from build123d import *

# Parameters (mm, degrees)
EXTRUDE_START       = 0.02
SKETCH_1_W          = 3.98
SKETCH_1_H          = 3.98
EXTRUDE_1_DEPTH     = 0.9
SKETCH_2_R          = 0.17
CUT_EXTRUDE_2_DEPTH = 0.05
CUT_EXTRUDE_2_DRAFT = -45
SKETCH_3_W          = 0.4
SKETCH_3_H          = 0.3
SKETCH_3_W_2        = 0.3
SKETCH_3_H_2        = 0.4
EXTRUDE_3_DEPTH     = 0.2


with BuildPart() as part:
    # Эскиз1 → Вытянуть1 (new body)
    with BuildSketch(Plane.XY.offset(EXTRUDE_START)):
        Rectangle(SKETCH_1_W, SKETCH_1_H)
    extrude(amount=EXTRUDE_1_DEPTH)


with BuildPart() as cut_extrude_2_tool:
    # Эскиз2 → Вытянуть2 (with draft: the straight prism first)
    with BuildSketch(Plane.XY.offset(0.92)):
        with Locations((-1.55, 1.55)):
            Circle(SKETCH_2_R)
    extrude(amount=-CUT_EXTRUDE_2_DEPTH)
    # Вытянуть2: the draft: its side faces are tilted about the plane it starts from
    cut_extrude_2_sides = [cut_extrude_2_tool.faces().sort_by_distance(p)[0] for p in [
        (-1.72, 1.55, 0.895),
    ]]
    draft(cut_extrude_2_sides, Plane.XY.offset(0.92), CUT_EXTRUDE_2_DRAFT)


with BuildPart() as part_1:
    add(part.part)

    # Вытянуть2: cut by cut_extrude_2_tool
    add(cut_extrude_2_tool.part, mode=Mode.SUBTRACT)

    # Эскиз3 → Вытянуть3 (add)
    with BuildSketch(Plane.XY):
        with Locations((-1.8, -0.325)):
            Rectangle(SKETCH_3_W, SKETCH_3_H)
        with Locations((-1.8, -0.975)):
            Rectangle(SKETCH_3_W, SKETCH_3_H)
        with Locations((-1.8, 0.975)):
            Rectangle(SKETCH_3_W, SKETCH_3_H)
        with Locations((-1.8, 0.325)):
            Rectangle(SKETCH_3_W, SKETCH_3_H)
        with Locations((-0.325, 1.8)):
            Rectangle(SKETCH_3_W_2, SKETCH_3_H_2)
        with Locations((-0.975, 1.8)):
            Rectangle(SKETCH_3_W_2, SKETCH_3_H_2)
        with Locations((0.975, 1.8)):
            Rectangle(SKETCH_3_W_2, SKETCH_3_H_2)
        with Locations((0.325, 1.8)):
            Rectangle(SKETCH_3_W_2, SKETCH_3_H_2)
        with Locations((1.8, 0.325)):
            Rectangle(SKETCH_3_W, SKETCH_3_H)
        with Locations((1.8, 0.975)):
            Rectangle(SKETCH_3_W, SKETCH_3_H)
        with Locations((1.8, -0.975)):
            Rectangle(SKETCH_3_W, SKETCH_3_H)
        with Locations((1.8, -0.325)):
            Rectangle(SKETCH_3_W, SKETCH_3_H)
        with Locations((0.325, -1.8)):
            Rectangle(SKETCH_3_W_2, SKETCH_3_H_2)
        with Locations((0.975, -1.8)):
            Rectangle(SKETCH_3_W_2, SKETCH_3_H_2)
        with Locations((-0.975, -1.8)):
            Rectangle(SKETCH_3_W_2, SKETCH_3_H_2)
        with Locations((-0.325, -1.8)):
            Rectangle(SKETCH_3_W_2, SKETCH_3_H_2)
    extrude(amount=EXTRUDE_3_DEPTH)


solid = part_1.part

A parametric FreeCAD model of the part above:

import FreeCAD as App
import Part
import Sketcher
from FreeCAD import Vector


def faces_at(feature, points):
    """Names of the faces that lie closest to the given points."""
    faces = feature.Shape.Faces
    near = lambda p: min(range(len(faces)), key=lambda i: faces[i].distToShape(Part.Vertex(*p))[0])
    return sorted({f"Face{near(p) + 1}" for p in points})

doc = App.newDocument("Part")
body = doc.addObject("PartDesign::Body", "Body")

# Sketch on XY plane
sketch1 = body.newObject("Sketcher::SketchObject", "Sketch")
sketch1.AttachmentSupport = (doc.getObject("XY_Plane"), [""])
sketch1.MapMode = "FlatFace"
sketch1.AttachmentOffset = App.Placement(Vector(0, 0, 0.02), App.Rotation())
sketch1.addGeometry(Part.LineSegment(Vector(-2, 2, 0), Vector(-2, -2, 0)), False)
sketch1.addGeometry(Part.LineSegment(Vector(-2, -2, 0), Vector(2, -2, 0)), False)
sketch1.addGeometry(Part.LineSegment(Vector(2, -2, 0), Vector(2, 2, 0)), False)
sketch1.addGeometry(Part.LineSegment(Vector(2, 2, 0), Vector(-2, 2, 0)), False)
sketch1.addConstraint(Sketcher.Constraint("Coincident", 0, 2, 1, 1))
sketch1.addConstraint(Sketcher.Constraint("Coincident", 1, 2, 2, 1))
sketch1.addConstraint(Sketcher.Constraint("Coincident", 2, 2, 3, 1))
sketch1.addConstraint(Sketcher.Constraint("Coincident", 3, 2, 0, 1))
sketch1.addConstraint(Sketcher.Constraint("Vertical", 0))
sketch1.addConstraint(Sketcher.Constraint("Horizontal", 1))
sketch1.addConstraint(Sketcher.Constraint("Vertical", 2))
sketch1.addConstraint(Sketcher.Constraint("Horizontal", 3))
sketch1.addConstraint(Sketcher.Constraint("Symmetric", 0, 2, 2, 2, -1, 1))
sketch1.addConstraint(Sketcher.Constraint("Equal", 3, 0))
sketch1.addConstraint(Sketcher.Constraint("DistanceX", 1, 1, 1, 2, 3.98))
pad1 = body.newObject("PartDesign::Pad", "Pad")
pad1.Profile = sketch1
pad1.Length = 0.9
body2 = doc.addObject("PartDesign::Body", "Body001")

# Sketch on XY plane
sketch2 = body2.newObject("Sketcher::SketchObject", "Sketch001")
sketch2.AttachmentSupport = (doc.getObject("XY_Plane001"), [""])
sketch2.MapMode = "FlatFace"
sketch2.AttachmentOffset = App.Placement(Vector(0, 0, 0.92), App.Rotation())
sketch2.addGeometry(Part.Circle(Vector(-1.55, 1.55, 0), Vector(0, 0, 1), 0.17), False)
sketch2.addConstraint(Sketcher.Constraint("Diameter", 0, 0.34))
sketch2.addConstraint(Sketcher.Constraint("DistanceX", 0, 3, -1, 1, 1.55))
sketch2.addConstraint(Sketcher.Constraint("DistanceY", -1, 1, 0, 3, 1.55))
pad2 = body2.newObject("PartDesign::Pad", "Pad001")
pad2.Profile = sketch2
pad2.Length = 0.05
pad2.Reversed = True
doc.recompute()

datumplane = body2.newObject("PartDesign::Plane", "DatumPlane")
datumplane.AttachmentSupport = (doc.getObject("XY_Plane001"), [""])
datumplane.MapMode = "FlatFace"
datumplane.AttachmentOffset = App.Placement(Vector(0, 0, 0.92), App.Rotation())
draft = body2.newObject("PartDesign::Draft", "Draft")
draft.Base = (pad2, faces_at(pad2, [(-1.72, 1.55, 0.895)]))
draft.NeutralPlane = (datumplane, [""])
draft.Angle = 45
draft.Reversed = True
doc.recompute()

boolean = body.newObject("PartDesign::Boolean", "Boolean")
boolean.Type = "Cut"
boolean.addObjects([body2])

# Sketch on XY plane
sketch3 = body.newObject("Sketcher::SketchObject", "Sketch002")
sketch3.AttachmentSupport = (doc.getObject("XY_Plane"), [""])
sketch3.MapMode = "FlatFace"
sketch3.addGeometry(Part.LineSegment(Vector(-2, -0.17, 0), Vector(-2, -0.47, 0)), False)
sketch3.addGeometry(Part.LineSegment(Vector(-2, -0.47, 0), Vector(-1.6, -0.47, 0)), False)
sketch3.addGeometry(Part.LineSegment(Vector(-1.6, -0.47, 0), Vector(-1.6, -0.17, 0)), False)
sketch3.addGeometry(Part.LineSegment(Vector(-1.6, -0.17, 0), Vector(-2, -0.17, 0)), False)
sketch3.addGeometry(Part.LineSegment(Vector(-2, -0.82, 0), Vector(-2, -1.12, 0)), False)
sketch3.addGeometry(Part.LineSegment(Vector(-2, -1.12, 0), Vector(-1.6, -1.12, 0)), False)
sketch3.addGeometry(Part.LineSegment(Vector(-1.6, -1.12, 0), Vector(-1.6, -0.82, 0)), False)
sketch3.addGeometry(Part.LineSegment(Vector(-1.6, -0.82, 0), Vector(-2, -0.82, 0)), False)
sketch3.addGeometry(Part.LineSegment(Vector(-2, 1.12, 0), Vector(-2, 0.82, 0)), False)
sketch3.addGeometry(Part.LineSegment(Vector(-2, 0.82, 0), Vector(-1.6, 0.82, 0)), False)
sketch3.addGeometry(Part.LineSegment(Vector(-1.6, 0.82, 0), Vector(-1.6, 1.12, 0)), False)
sketch3.addGeometry(Part.LineSegment(Vector(-1.6, 1.12, 0), Vector(-2, 1.12, 0)), False)
sketch3.addGeometry(Part.LineSegment(Vector(-2, 0.47, 0), Vector(-2, 0.17, 0)), False)
sketch3.addGeometry(Part.LineSegment(Vector(-2, 0.17, 0), Vector(-1.6, 0.17, 0)), False)
sketch3.addGeometry(Part.LineSegment(Vector(-1.6, 0.17, 0), Vector(-1.6, 0.47, 0)), False)
sketch3.addGeometry(Part.LineSegment(Vector(-1.6, 0.47, 0), Vector(-2, 0.47, 0)), False)
sketch3.addGeometry(Part.LineSegment(Vector(-0.47, 2, 0), Vector(-0.47, 1.6, 0)), False)
sketch3.addGeometry(Part.LineSegment(Vector(-0.47, 1.6, 0), Vector(-0.17, 1.6, 0)), False)
sketch3.addGeometry(Part.LineSegment(Vector(-0.17, 1.6, 0), Vector(-0.17, 2, 0)), False)
sketch3.addGeometry(Part.LineSegment(Vector(-0.17, 2, 0), Vector(-0.47, 2, 0)), False)
sketch3.addGeometry(Part.LineSegment(Vector(-1.12, 2, 0), Vector(-1.12, 1.6, 0)), False)
sketch3.addGeometry(Part.LineSegment(Vector(-1.12, 1.6, 0), Vector(-0.82, 1.6, 0)), False)
sketch3.addGeometry(Part.LineSegment(Vector(-0.82, 1.6, 0), Vector(-0.82, 2, 0)), False)
sketch3.addGeometry(Part.LineSegment(Vector(-0.82, 2, 0), Vector(-1.12, 2, 0)), False)
sketch3.addGeometry(Part.LineSegment(Vector(0.82, 2, 0), Vector(0.82, 1.6, 0)), False)
sketch3.addGeometry(Part.LineSegment(Vector(0.82, 1.6, 0), Vector(1.12, 1.6, 0)), False)
sketch3.addGeometry(Part.LineSegment(Vector(1.12, 1.6, 0), Vector(1.12, 2, 0)), False)
sketch3.addGeometry(Part.LineSegment(Vector(1.12, 2, 0), Vector(0.82, 2, 0)), False)
sketch3.addGeometry(Part.LineSegment(Vector(0.17, 2, 0), Vector(0.17, 1.6, 0)), False)
sketch3.addGeometry(Part.LineSegment(Vector(0.17, 1.6, 0), Vector(0.47, 1.6, 0)), False)
sketch3.addGeometry(Part.LineSegment(Vector(0.47, 1.6, 0), Vector(0.47, 2, 0)), False)
sketch3.addGeometry(Part.LineSegment(Vector(0.47, 2, 0), Vector(0.17, 2, 0)), False)
sketch3.addGeometry(Part.LineSegment(Vector(1.6, 0.47, 0), Vector(1.6, 0.17, 0)), False)
sketch3.addGeometry(Part.LineSegment(Vector(1.6, 0.17, 0), Vector(2, 0.17, 0)), False)
sketch3.addGeometry(Part.LineSegment(Vector(2, 0.17, 0), Vector(2, 0.47, 0)), False)
sketch3.addGeometry(Part.LineSegment(Vector(2, 0.47, 0), Vector(1.6, 0.47, 0)), False)
sketch3.addGeometry(Part.LineSegment(Vector(1.6, 1.12, 0), Vector(1.6, 0.82, 0)), False)
sketch3.addGeometry(Part.LineSegment(Vector(1.6, 0.82, 0), Vector(2, 0.82, 0)), False)
sketch3.addGeometry(Part.LineSegment(Vector(2, 0.82, 0), Vector(2, 1.12, 0)), False)
sketch3.addGeometry(Part.LineSegment(Vector(2, 1.12, 0), Vector(1.6, 1.12, 0)), False)
sketch3.addGeometry(Part.LineSegment(Vector(1.6, -0.82, 0), Vector(1.6, -1.12, 0)), False)
sketch3.addGeometry(Part.LineSegment(Vector(1.6, -1.12, 0), Vector(2, -1.12, 0)), False)
sketch3.addGeometry(Part.LineSegment(Vector(2, -1.12, 0), Vector(2, -0.82, 0)), False)
sketch3.addGeometry(Part.LineSegment(Vector(2, -0.82, 0), Vector(1.6, -0.82, 0)), False)
sketch3.addGeometry(Part.LineSegment(Vector(1.6, -0.17, 0), Vector(1.6, -0.47, 0)), False)
sketch3.addGeometry(Part.LineSegment(Vector(1.6, -0.47, 0), Vector(2, -0.47, 0)), False)
sketch3.addGeometry(Part.LineSegment(Vector(2, -0.47, 0), Vector(2, -0.17, 0)), False)
sketch3.addGeometry(Part.LineSegment(Vector(2, -0.17, 0), Vector(1.6, -0.17, 0)), False)
sketch3.addGeometry(Part.LineSegment(Vector(0.17, -1.6, 0), Vector(0.17, -2, 0)), False)
sketch3.addGeometry(Part.LineSegment(Vector(0.17, -2, 0), Vector(0.47, -2, 0)), False)
sketch3.addGeometry(Part.LineSegment(Vector(0.47, -2, 0), Vector(0.47, -1.6, 0)), False)
sketch3.addGeometry(Part.LineSegment(Vector(0.47, -1.6, 0), Vector(0.17, -1.6, 0)), False)
sketch3.addGeometry(Part.LineSegment(Vector(0.82, -1.6, 0), Vector(0.82, -2, 0)), False)
sketch3.addGeometry(Part.LineSegment(Vector(0.82, -2, 0), Vector(1.12, -2, 0)), False)
sketch3.addGeometry(Part.LineSegment(Vector(1.12, -2, 0), Vector(1.12, -1.6, 0)), False)
sketch3.addGeometry(Part.LineSegment(Vector(1.12, -1.6, 0), Vector(0.82, -1.6, 0)), False)
sketch3.addGeometry(Part.LineSegment(Vector(-1.12, -1.6, 0), Vector(-1.12, -2, 0)), False)
sketch3.addGeometry(Part.LineSegment(Vector(-1.12, -2, 0), Vector(-0.82, -2, 0)), False)
sketch3.addGeometry(Part.LineSegment(Vector(-0.82, -2, 0), Vector(-0.82, -1.6, 0)), False)
sketch3.addGeometry(Part.LineSegment(Vector(-0.82, -1.6, 0), Vector(-1.12, -1.6, 0)), False)
sketch3.addGeometry(Part.LineSegment(Vector(-0.47, -1.6, 0), Vector(-0.47, -2, 0)), False)
sketch3.addGeometry(Part.LineSegment(Vector(-0.47, -2, 0), Vector(-0.17, -2, 0)), False)
sketch3.addGeometry(Part.LineSegment(Vector(-0.17, -2, 0), Vector(-0.17, -1.6, 0)), False)
sketch3.addGeometry(Part.LineSegment(Vector(-0.17, -1.6, 0), Vector(-0.47, -1.6, 0)), False)
sketch3.addConstraint(Sketcher.Constraint("Coincident", 0, 2, 1, 1))
sketch3.addConstraint(Sketcher.Constraint("Coincident", 1, 2, 2, 1))
sketch3.addConstraint(Sketcher.Constraint("Coincident", 2, 2, 3, 1))
sketch3.addConstraint(Sketcher.Constraint("Coincident", 3, 2, 0, 1))
sketch3.addConstraint(Sketcher.Constraint("Coincident", 4, 2, 5, 1))
sketch3.addConstraint(Sketcher.Constraint("Coincident", 5, 2, 6, 1))
sketch3.addConstraint(Sketcher.Constraint("Coincident", 6, 2, 7, 1))
sketch3.addConstraint(Sketcher.Constraint("Coincident", 7, 2, 4, 1))
sketch3.addConstraint(Sketcher.Constraint("Coincident", 8, 2, 9, 1))
sketch3.addConstraint(Sketcher.Constraint("Coincident", 9, 2, 10, 1))
sketch3.addConstraint(Sketcher.Constraint("Coincident", 10, 2, 11, 1))
sketch3.addConstraint(Sketcher.Constraint("Coincident", 11, 2, 8, 1))
sketch3.addConstraint(Sketcher.Constraint("Coincident", 12, 2, 13, 1))
sketch3.addConstraint(Sketcher.Constraint("Coincident", 13, 2, 14, 1))
sketch3.addConstraint(Sketcher.Constraint("Coincident", 14, 2, 15, 1))
sketch3.addConstraint(Sketcher.Constraint("Coincident", 15, 2, 12, 1))
sketch3.addConstraint(Sketcher.Constraint("Coincident", 16, 2, 17, 1))
sketch3.addConstraint(Sketcher.Constraint("Coincident", 17, 2, 18, 1))
sketch3.addConstraint(Sketcher.Constraint("Coincident", 18, 2, 19, 1))
sketch3.addConstraint(Sketcher.Constraint("Coincident", 19, 2, 16, 1))
sketch3.addConstraint(Sketcher.Constraint("Coincident", 20, 2, 21, 1))
sketch3.addConstraint(Sketcher.Constraint("Coincident", 21, 2, 22, 1))
sketch3.addConstraint(Sketcher.Constraint("Coincident", 22, 2, 23, 1))
sketch3.addConstraint(Sketcher.Constraint("Coincident", 23, 2, 20, 1))
sketch3.addConstraint(Sketcher.Constraint("Coincident", 24, 2, 25, 1))
sketch3.addConstraint(Sketcher.Constraint("Coincident", 25, 2, 26, 1))
sketch3.addConstraint(Sketcher.Constraint("Coincident", 26, 2, 27, 1))
sketch3.addConstraint(Sketcher.Constraint("Coincident", 27, 2, 24, 1))
sketch3.addConstraint(Sketcher.Constraint("Coincident", 28, 2, 29, 1))
sketch3.addConstraint(Sketcher.Constraint("Coincident", 29, 2, 30, 1))
sketch3.addConstraint(Sketcher.Constraint("Coincident", 30, 2, 31, 1))
sketch3.addConstraint(Sketcher.Constraint("Coincident", 31, 2, 28, 1))
sketch3.addConstraint(Sketcher.Constraint("Coincident", 32, 2, 33, 1))
sketch3.addConstraint(Sketcher.Constraint("Coincident", 33, 2, 34, 1))
sketch3.addConstraint(Sketcher.Constraint("Coincident", 34, 2, 35, 1))
sketch3.addConstraint(Sketcher.Constraint("Coincident", 35, 2, 32, 1))
sketch3.addConstraint(Sketcher.Constraint("Coincident", 36, 2, 37, 1))
sketch3.addConstraint(Sketcher.Constraint("Coincident", 37, 2, 38, 1))
sketch3.addConstraint(Sketcher.Constraint("Coincident", 38, 2, 39, 1))
sketch3.addConstraint(Sketcher.Constraint("Coincident", 39, 2, 36, 1))
sketch3.addConstraint(Sketcher.Constraint("Coincident", 40, 2, 41, 1))
sketch3.addConstraint(Sketcher.Constraint("Coincident", 41, 2, 42, 1))
sketch3.addConstraint(Sketcher.Constraint("Coincident", 42, 2, 43, 1))
sketch3.addConstraint(Sketcher.Constraint("Coincident", 43, 2, 40, 1))
sketch3.addConstraint(Sketcher.Constraint("Coincident", 44, 2, 45, 1))
sketch3.addConstraint(Sketcher.Constraint("Coincident", 45, 2, 46, 1))
sketch3.addConstraint(Sketcher.Constraint("Coincident", 46, 2, 47, 1))
sketch3.addConstraint(Sketcher.Constraint("Coincident", 47, 2, 44, 1))
sketch3.addConstraint(Sketcher.Constraint("Coincident", 48, 2, 49, 1))
sketch3.addConstraint(Sketcher.Constraint("Coincident", 49, 2, 50, 1))
sketch3.addConstraint(Sketcher.Constraint("Coincident", 50, 2, 51, 1))
sketch3.addConstraint(Sketcher.Constraint("Coincident", 51, 2, 48, 1))
sketch3.addConstraint(Sketcher.Constraint("Coincident", 52, 2, 53, 1))
sketch3.addConstraint(Sketcher.Constraint("Coincident", 53, 2, 54, 1))
sketch3.addConstraint(Sketcher.Constraint("Coincident", 54, 2, 55, 1))
sketch3.addConstraint(Sketcher.Constraint("Coincident", 55, 2, 52, 1))
sketch3.addConstraint(Sketcher.Constraint("Coincident", 56, 2, 57, 1))
sketch3.addConstraint(Sketcher.Constraint("Coincident", 57, 2, 58, 1))
sketch3.addConstraint(Sketcher.Constraint("Coincident", 58, 2, 59, 1))
sketch3.addConstraint(Sketcher.Constraint("Coincident", 59, 2, 56, 1))
sketch3.addConstraint(Sketcher.Constraint("Coincident", 60, 2, 61, 1))
sketch3.addConstraint(Sketcher.Constraint("Coincident", 61, 2, 62, 1))
sketch3.addConstraint(Sketcher.Constraint("Coincident", 62, 2, 63, 1))
sketch3.addConstraint(Sketcher.Constraint("Coincident", 63, 2, 60, 1))
sketch3.addConstraint(Sketcher.Constraint("Vertical", 0))
sketch3.addConstraint(Sketcher.Constraint("Horizontal", 1))
sketch3.addConstraint(Sketcher.Constraint("Vertical", 2))
sketch3.addConstraint(Sketcher.Constraint("Horizontal", 3))
sketch3.addConstraint(Sketcher.Constraint("Vertical", 4))
sketch3.addConstraint(Sketcher.Constraint("Horizontal", 5))
sketch3.addConstraint(Sketcher.Constraint("Vertical", 6))
sketch3.addConstraint(Sketcher.Constraint("Horizontal", 7))
sketch3.addConstraint(Sketcher.Constraint("Vertical", 8))
sketch3.addConstraint(Sketcher.Constraint("Horizontal", 9))
sketch3.addConstraint(Sketcher.Constraint("Vertical", 10))
sketch3.addConstraint(Sketcher.Constraint("Horizontal", 11))
sketch3.addConstraint(Sketcher.Constraint("Vertical", 12))
sketch3.addConstraint(Sketcher.Constraint("Horizontal", 13))
sketch3.addConstraint(Sketcher.Constraint("Vertical", 14))
sketch3.addConstraint(Sketcher.Constraint("Horizontal", 15))
sketch3.addConstraint(Sketcher.Constraint("Vertical", 16))
sketch3.addConstraint(Sketcher.Constraint("Horizontal", 17))
sketch3.addConstraint(Sketcher.Constraint("Vertical", 18))
sketch3.addConstraint(Sketcher.Constraint("Horizontal", 19))
sketch3.addConstraint(Sketcher.Constraint("Vertical", 20))
sketch3.addConstraint(Sketcher.Constraint("Horizontal", 21))
sketch3.addConstraint(Sketcher.Constraint("Vertical", 22))
sketch3.addConstraint(Sketcher.Constraint("Horizontal", 23))
sketch3.addConstraint(Sketcher.Constraint("Vertical", 24))
sketch3.addConstraint(Sketcher.Constraint("Horizontal", 25))
sketch3.addConstraint(Sketcher.Constraint("Vertical", 26))
sketch3.addConstraint(Sketcher.Constraint("Horizontal", 27))
sketch3.addConstraint(Sketcher.Constraint("Vertical", 28))
sketch3.addConstraint(Sketcher.Constraint("Horizontal", 29))
sketch3.addConstraint(Sketcher.Constraint("Vertical", 30))
sketch3.addConstraint(Sketcher.Constraint("Horizontal", 31))
sketch3.addConstraint(Sketcher.Constraint("Vertical", 32))
sketch3.addConstraint(Sketcher.Constraint("Horizontal", 33))
sketch3.addConstraint(Sketcher.Constraint("Vertical", 34))
sketch3.addConstraint(Sketcher.Constraint("Horizontal", 35))
sketch3.addConstraint(Sketcher.Constraint("Vertical", 36))
sketch3.addConstraint(Sketcher.Constraint("Horizontal", 37))
sketch3.addConstraint(Sketcher.Constraint("Vertical", 38))
sketch3.addConstraint(Sketcher.Constraint("Horizontal", 39))
sketch3.addConstraint(Sketcher.Constraint("Vertical", 40))
sketch3.addConstraint(Sketcher.Constraint("Horizontal", 41))
sketch3.addConstraint(Sketcher.Constraint("Vertical", 42))
sketch3.addConstraint(Sketcher.Constraint("Horizontal", 43))
sketch3.addConstraint(Sketcher.Constraint("Vertical", 44))
sketch3.addConstraint(Sketcher.Constraint("Horizontal", 45))
sketch3.addConstraint(Sketcher.Constraint("Vertical", 46))
sketch3.addConstraint(Sketcher.Constraint("Horizontal", 47))
sketch3.addConstraint(Sketcher.Constraint("Vertical", 48))
sketch3.addConstraint(Sketcher.Constraint("Horizontal", 49))
sketch3.addConstraint(Sketcher.Constraint("Vertical", 50))
sketch3.addConstraint(Sketcher.Constraint("Horizontal", 51))
sketch3.addConstraint(Sketcher.Constraint("Vertical", 52))
sketch3.addConstraint(Sketcher.Constraint("Horizontal", 53))
sketch3.addConstraint(Sketcher.Constraint("Vertical", 54))
sketch3.addConstraint(Sketcher.Constraint("Horizontal", 55))
sketch3.addConstraint(Sketcher.Constraint("Vertical", 56))
sketch3.addConstraint(Sketcher.Constraint("Horizontal", 57))
sketch3.addConstraint(Sketcher.Constraint("Vertical", 58))
sketch3.addConstraint(Sketcher.Constraint("Horizontal", 59))
sketch3.addConstraint(Sketcher.Constraint("Vertical", 60))
sketch3.addConstraint(Sketcher.Constraint("Horizontal", 61))
sketch3.addConstraint(Sketcher.Constraint("Vertical", 62))
sketch3.addConstraint(Sketcher.Constraint("Horizontal", 63))
sketch3.addConstraint(Sketcher.Constraint("Symmetric", 2, 2, 32, 2, -1, 1))
sketch3.addConstraint(Sketcher.Constraint("Symmetric", 0, 2, 34, 2, -1, 1))
sketch3.addConstraint(Sketcher.Constraint("Symmetric", 6, 2, 36, 2, -1, 1))
sketch3.addConstraint(Sketcher.Constraint("Symmetric", 4, 2, 38, 2, -1, 1))
sketch3.addConstraint(Sketcher.Constraint("Symmetric", 10, 2, 40, 2, -1, 1))
sketch3.addConstraint(Sketcher.Constraint("Symmetric", 8, 2, 42, 2, -1, 1))
sketch3.addConstraint(Sketcher.Constraint("Symmetric", 14, 2, 44, 2, -1, 1))
sketch3.addConstraint(Sketcher.Constraint("Symmetric", 12, 2, 46, 2, -1, 1))
sketch3.addConstraint(Sketcher.Constraint("Symmetric", 18, 2, 48, 2, -1, 1))
sketch3.addConstraint(Sketcher.Constraint("Symmetric", 16, 2, 50, 2, -1, 1))
sketch3.addConstraint(Sketcher.Constraint("Symmetric", 22, 2, 52, 2, -1, 1))
sketch3.addConstraint(Sketcher.Constraint("Symmetric", 20, 2, 54, 2, -1, 1))
sketch3.addConstraint(Sketcher.Constraint("Symmetric", 26, 2, 56, 2, -1, 1))
sketch3.addConstraint(Sketcher.Constraint("Symmetric", 24, 2, 58, 2, -1, 1))
sketch3.addConstraint(Sketcher.Constraint("Symmetric", 30, 2, 60, 2, -1, 1))
sketch3.addConstraint(Sketcher.Constraint("Symmetric", 28, 2, 62, 2, -1, 1))
sketch3.addConstraint(Sketcher.Constraint("Symmetric", 21, 2, 24, 2, -2))
sketch3.addConstraint(Sketcher.Constraint("Symmetric", 23, 2, 26, 2, -2))
sketch3.addConstraint(Sketcher.Constraint("Symmetric", 17, 2, 28, 2, -2))
sketch3.addConstraint(Sketcher.Constraint("Symmetric", 19, 2, 30, 2, -2))
sketch3.addConstraint(Sketcher.Constraint("Symmetric", 13, 2, 32, 2, -2))
sketch3.addConstraint(Sketcher.Constraint("Symmetric", 15, 2, 34, 2, -2))
sketch3.addConstraint(Sketcher.Constraint("Symmetric", 9, 2, 36, 2, -2))
sketch3.addConstraint(Sketcher.Constraint("Symmetric", 11, 2, 38, 2, -2))
sketch3.addConstraint(Sketcher.Constraint("Horizontal", 17, 2, 20, 2))
sketch3.addConstraint(Sketcher.Constraint("Horizontal", 19, 2, 22, 2))
sketch3.addConstraint(Sketcher.Constraint("Vertical", 3, 2, 4, 2))
sketch3.addConstraint(Sketcher.Constraint("Vertical", 2, 2, 5, 2))
sketch3.addConstraint(Sketcher.Constraint("Equal", 19, 21))
sketch3.addConstraint(Sketcher.Constraint("Equal", 63, 0))
sketch3.addConstraint(Sketcher.Constraint("Equal", 2, 4))
sketch3.addConstraint(Sketcher.Constraint("Equal", 47, 16))
sketch3.addConstraint(Sketcher.Constraint("DistanceX", 1, 1, 1, 2, 0.4))
sketch3.addConstraint(Sketcher.Constraint("DistanceX", 17, 1, 17, 2, 0.3))
sketch3.addConstraint(Sketcher.Constraint("DistanceX", 0, 2, -1, 1, 2.0))
sketch3.addConstraint(Sketcher.Constraint("DistanceY", -1, 1, 18, 2, 2.0))
sketch3.addConstraint(Sketcher.Constraint("DistanceY", 0, 2, -1, 1, 0.475))
sketch3.addConstraint(Sketcher.Constraint("DistanceY", 4, 2, -1, 1, 1.125))
sketch3.addConstraint(Sketcher.Constraint("DistanceX", 16, 2, -1, 1, 0.475))
sketch3.addConstraint(Sketcher.Constraint("DistanceX", 20, 2, -1, 1, 1.125))
pad3 = body.newObject("PartDesign::Pad", "Pad002")
pad3.Profile = sketch3
pad3.Length = 0.2

doc.recompute()
